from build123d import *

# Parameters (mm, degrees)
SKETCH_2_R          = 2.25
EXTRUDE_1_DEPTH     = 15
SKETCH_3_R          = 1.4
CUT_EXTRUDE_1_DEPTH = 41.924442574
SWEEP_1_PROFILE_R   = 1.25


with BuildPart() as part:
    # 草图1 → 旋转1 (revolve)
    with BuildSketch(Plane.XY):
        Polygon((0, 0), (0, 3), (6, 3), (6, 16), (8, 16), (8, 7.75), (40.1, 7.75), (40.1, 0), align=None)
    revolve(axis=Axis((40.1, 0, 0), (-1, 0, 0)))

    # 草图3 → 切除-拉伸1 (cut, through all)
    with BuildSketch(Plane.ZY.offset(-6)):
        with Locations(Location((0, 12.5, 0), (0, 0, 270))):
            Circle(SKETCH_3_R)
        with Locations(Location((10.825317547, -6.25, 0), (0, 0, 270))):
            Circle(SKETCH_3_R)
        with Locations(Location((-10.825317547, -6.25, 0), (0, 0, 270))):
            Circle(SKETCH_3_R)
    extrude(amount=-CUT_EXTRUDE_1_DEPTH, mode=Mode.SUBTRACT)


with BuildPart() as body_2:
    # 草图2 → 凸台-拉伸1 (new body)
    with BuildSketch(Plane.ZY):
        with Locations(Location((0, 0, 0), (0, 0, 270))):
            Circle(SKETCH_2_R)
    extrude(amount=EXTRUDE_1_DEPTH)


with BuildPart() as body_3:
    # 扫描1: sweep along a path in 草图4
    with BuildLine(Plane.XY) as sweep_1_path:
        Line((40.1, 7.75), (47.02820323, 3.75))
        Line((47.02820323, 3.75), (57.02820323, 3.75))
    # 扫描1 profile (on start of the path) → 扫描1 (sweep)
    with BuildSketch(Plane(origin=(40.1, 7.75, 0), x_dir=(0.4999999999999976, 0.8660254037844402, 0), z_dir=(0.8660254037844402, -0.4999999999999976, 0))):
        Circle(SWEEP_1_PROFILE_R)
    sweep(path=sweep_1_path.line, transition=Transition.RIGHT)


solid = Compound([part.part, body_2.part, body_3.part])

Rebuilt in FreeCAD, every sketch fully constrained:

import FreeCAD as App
import Part
import Sketcher
Q = App.Units.Quantity

doc = App.newDocument("Part")
body = doc.addObject("PartDesign::Body", "Body")

sketch1 = body.newObject("Sketcher::SketchObject", "Sketch")
sketch1.AttachmentSupport = (doc.getObject("XY_Plane"), [""])
sketch1.MapMode = "FlatFace"
sketch1.addGeometry([
    Part.LineSegment(App.Vector(0, 3, 0), App.Vector(0, 0, 0)),
    Part.LineSegment(App.Vector(0, 0, 0), App.Vector(40.1, 0, 0)),
    Part.LineSegment(App.Vector(40.1, 0, 0), App.Vector(40.1, 7.75, 0)),
    Part.LineSegment(App.Vector(40.1, 7.75, 0), App.Vector(8, 7.75, 0)),
    Part.LineSegment(App.Vector(8, 7.75, 0), App.Vector(8, 16, 0)),
    Part.LineSegment(App.Vector(8, 16, 0), App.Vector(6, 16, 0)),
    Part.LineSegment(App.Vector(6, 16, 0), App.Vector(6, 3, 0)),
    Part.LineSegment(App.Vector(6, 3, 0), App.Vector(0, 3, 0)),
], False)
sketch1.addConstraint([
    Sketcher.Constraint("Coincident", 0, 2, 1, 1),
    Sketcher.Constraint("Coincident", 1, 2, 2, 1),
    Sketcher.Constraint("Coincident", 2, 2, 3, 1),
    Sketcher.Constraint("Coincident", 3, 2, 4, 1),
    Sketcher.Constraint("Coincident", 4, 2, 5, 1),
    Sketcher.Constraint("Coincident", 5, 2, 6, 1),
    Sketcher.Constraint("Coincident", 6, 2, 7, 1),
    Sketcher.Constraint("Coincident", 7, 2, 0, 1),
    Sketcher.Constraint("Vertical", 0),
    Sketcher.Constraint("Horizontal", 1),
    Sketcher.Constraint("Vertical", 2),
    Sketcher.Constraint("Horizontal", 3),
    Sketcher.Constraint("Vertical", 4),
    Sketcher.Constraint("Horizontal", 5),
    Sketcher.Constraint("Vertical", 6),
    Sketcher.Constraint("Horizontal", 7),
    Sketcher.Constraint("Coincident", 0, 2, -1, 1),
    Sketcher.Constraint("DistanceX", 5, 2, 5, 1, 2.0),
    Sketcher.Constraint("DistanceX", 7, 2, 7, 1, 6.0),
    Sketcher.Constraint("DistanceY", 0, 2, 0, 1, 3.0),
    Sketcher.Constraint("DistanceY", 6, 2, 6, 1, 13.0),
    Sketcher.Constraint("DistanceX", 1, 1, 1, 2, 40.1),
    Sketcher.Constraint("DistanceY", 2, 1, 2, 2, 7.75),
])
revolution = body.newObject("PartDesign::Revolution", "Revolution")
revolution.Profile = sketch1
revolution.ReferenceAxis = (sketch1, ["H_Axis"])
revolution.Angle = 360

sketch2 = body.newObject("Sketcher::SketchObject", "Sketch001")
sketch2.AttachmentSupport = (doc.getObject("YZ_Plane"), [""])
sketch2.MapMode = "FlatFace"
sketch2.AttachmentOffset = App.Placement(App.Vector(0, 0, 6), App.Rotation())
sketch2.addGeometry([
    Part.Circle(App.Vector(12.5, 0, 0), App.Vector(0, 0, 1), 1.4),
    Part.Circle(App.Vector(-6.25, 10.825318, 0), App.Vector(0, 0, 1), 1.4),
    Part.Circle(App.Vector(-6.25, -10.825318, 0), App.Vector(0, 0, 1), 1.4),
], False)
sketch2.addConstraint([
    Sketcher.Constraint("Equal", 0, 1),
    Sketcher.Constraint("Equal", 1, 2),
    Sketcher.Constraint("Symmetric", 1, 3, 2, 3, -1),
    Sketcher.Constraint("PointOnObject", 0, 3, -1),
    Sketcher.Constraint("Diameter", 0, 2.8),
    Sketcher.Constraint("DistanceX", -1, 1, 0, 3, 12.5),
    Sketcher.Constraint("DistanceX", 1, 3, -1, 1, 6.25),
    Sketcher.Constraint("DistanceY", -1, 1, 1, 3, 10.825318),
])
pocket1 = body.newObject("PartDesign::Pocket", "Pocket")
pocket1.Profile = sketch2
pocket1.Type = "ThroughAll"
pocket1.Reversed = True
body2 = doc.addObject("PartDesign::Body", "Body001")

sketch3 = body2.newObject("Sketcher::SketchObject", "Sketch002")
sketch3.AttachmentSupport = (doc.getObject("YZ_Plane001"), [""])
sketch3.MapMode = "FlatFace"
sketch3.addGeometry(Part.Circle(App.Vector(0, 0, 0), App.Vector(0, 0, 1), 2.25), False)
sketch3.addConstraint([
    Sketcher.Constraint("Coincident", 0, 3, -1, 1),
    Sketcher.Constraint("Diameter", 0, 4.5),
])
pad1 = body2.newObject("PartDesign::Pad", "Pad")
pad1.Profile = sketch3
pad1.Length = 15
pad1.Reversed = True
body3 = doc.addObject("PartDesign::Body", "Body002")

sketch4 = body3.newObject("Sketcher::SketchObject", "Sketch003")
sketch4.Placement = App.Placement(App.Vector(40.1, 7.75, 0), App.Rotation(App.Vector(0.5, 0.866025404, 0), App.Vector(0, 0, 1), App.Vector(0.866025404, -0.5, 0), "ZXY"))
sketch4.addGeometry(Part.Circle(App.Vector(0, 0, 0), App.Vector(0, 0, 1), 1.25), False)
sketch4.addConstraint([
    Sketcher.Constraint("Coincident", 0, 3, -1, 1),
    Sketcher.Constraint("Diameter", 0, 2.5),
])

sketch5 = body3.newObject("Sketcher::SketchObject", "Sketch004")
sketch5.AttachmentSupport = (doc.getObject("XY_Plane002"), [""])
sketch5.MapMode = "FlatFace"
sketch5.addGeometry([
    Part.LineSegment(App.Vector(40.1, 7.75, 0), App.Vector(47.028203, 3.75, 0)),
    Part.LineSegment(App.Vector(47.028203, 3.75, 0), App.Vector(57.028203, 3.75, 0)),
], False)
sketch5.addConstraint([
    Sketcher.Constraint("Coincident", 0, 2, 1, 1),
    Sketcher.Constraint("Horizontal", 1),
    Sketcher.Constraint("DistanceX", 1, 1, 1, 2, 10.0),
    Sketcher.Constraint("Angle", 0, Q("-30 deg")),
    Sketcher.Constraint("Distance", 0, 8.0),
    Sketcher.Constraint("DistanceX", -1, 1, 0, 1, 40.1),
    Sketcher.Constraint("DistanceY", -1, 1, 0, 1, 7.75),
])
doc.recompute()

additivepipe = body3.newObject("PartDesign::AdditivePipe", "AdditivePipe")
additivepipe.Profile = sketch4
additivepipe.Spine = (sketch5, ["Edge1", "Edge2"])
additivepipe.Transition = "Right corner"

doc.recompute()
